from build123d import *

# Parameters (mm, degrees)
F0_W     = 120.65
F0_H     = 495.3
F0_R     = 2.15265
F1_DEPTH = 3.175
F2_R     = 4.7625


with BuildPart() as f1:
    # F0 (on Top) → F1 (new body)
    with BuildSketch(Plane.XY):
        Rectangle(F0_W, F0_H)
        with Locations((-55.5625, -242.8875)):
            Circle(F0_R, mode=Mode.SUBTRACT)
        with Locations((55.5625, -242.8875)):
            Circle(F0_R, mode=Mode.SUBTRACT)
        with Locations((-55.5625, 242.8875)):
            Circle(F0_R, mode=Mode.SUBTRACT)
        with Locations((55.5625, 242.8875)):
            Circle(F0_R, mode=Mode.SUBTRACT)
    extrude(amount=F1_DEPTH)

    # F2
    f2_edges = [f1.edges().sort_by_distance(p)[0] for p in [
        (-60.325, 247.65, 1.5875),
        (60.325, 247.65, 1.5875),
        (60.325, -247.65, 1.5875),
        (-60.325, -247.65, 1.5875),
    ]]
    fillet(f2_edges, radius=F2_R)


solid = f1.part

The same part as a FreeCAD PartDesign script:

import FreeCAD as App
import Part
import Sketcher
Q = App.Units.Quantity


def edges_at(feature, points):
    """Names of the edges that pass closest to the given points."""
    edges = feature.Shape.Edges
    near = lambda p: min(range(len(edges)), key=lambda i: edges[i].distToShape(Part.Vertex(*p))[0])
    return sorted({f"Edge{near(p) + 1}" for p in points})

doc = App.newDocument("Part")
body = doc.addObject("PartDesign::Body", "Body")

# Sketch on XY plane
sketch1 = body.newObject("Sketcher::SketchObject", "Sketch")
sketch1.AttachmentSupport = (doc.getObject("XY_Plane"), [""])
sketch1.MapMode = "FlatFace"
sketch1.addGeometry([
    Part.LineSegment(App.Vector(-60.3, 247.7, 0), App.Vector(-60.3, -247.7, 0)),  # 0
    Part.LineSegment(App.Vector(-60.3, -247.7, 0), App.Vector(60.3, -247.7, 0)),  # 1
    Part.LineSegment(App.Vector(60.3, -247.7, 0), App.Vector(60.3, 247.7, 0)),  # 2
    Part.LineSegment(App.Vector(60.3, 247.7, 0), App.Vector(-60.3, 247.7, 0)),  # 3
    Part.Circle(App.Vector(-55.6, -242.9, 0), App.Vector(0, 0, 1), 2.2),  # 4
    Part.Circle(App.Vector(55.6, -242.9, 0), App.Vector(0, 0, 1), 2.2),  # 5
    Part.Circle(App.Vector(-55.6, 242.9, 0), App.Vector(0, 0, 1), 2.2),  # 6
    Part.Circle(App.Vector(55.6, 242.9, 0), App.Vector(0, 0, 1), 2.2),  # 7
], False)
sketch1.addConstraint([
    Sketcher.Constraint("Coincident", 0, 2, 1, 1),
    Sketcher.Constraint("Coincident", 1, 2, 2, 1),
    Sketcher.Constraint("Coincident", 2, 2, 3, 1),
    Sketcher.Constraint("Coincident", 3, 2, 0, 1),
    Sketcher.Constraint("Vertical", 0),
    Sketcher.Constraint("Horizontal", 1),
    Sketcher.Constraint("Vertical", 2),
    Sketcher.Constraint("Horizontal", 3),
    Sketcher.Constraint("Equal", 4, 5),
    Sketcher.Constraint("Equal", 5, 6),
    Sketcher.Constraint("Equal", 6, 7),
    Sketcher.Constraint("Symmetric", 5, 3, 6, 3, -1, 1),
    Sketcher.Constraint("Symmetric", 4, 3, 7, 3, -1, 1),
    Sketcher.Constraint("Symmetric", 0, 2, 2, 2, -1, 1),
    Sketcher.Constraint("Symmetric", 4, 3, 5, 3, -2),
    Sketcher.Constraint("DistanceY", 0, 2, 0, 1, Q("19.5 in")),
    Sketcher.Constraint("Diameter", 4, Q("0.1695 in")),
    Sketcher.Constraint("DistanceX", 1, 1, 1, 2, Q("4.75 in")),
    Sketcher.Constraint("DistanceX", 4, 3, -1, 1, Q("2.1875 in")),
    Sketcher.Constraint("DistanceY", 4, 3, -1, 1, Q("9.5625 in")),
])
pad1 = body.newObject("PartDesign::Pad", "Pad")
pad1.Profile = sketch1
pad1.Length = Q("0.125 in")
doc.recompute()

fillet = body.newObject("PartDesign::Fillet", "Fillet")
fillet.Base = (pad1, edges_at(pad1, [
    (-60.325, 247.65, 1.587),
    (60.325, 247.65, 1.587),
    (60.325, -247.65, 1.587),
    (-60.325, -247.65, 1.587),
]))
fillet.Radius = Q("0.1875 in")

doc.recompute()
